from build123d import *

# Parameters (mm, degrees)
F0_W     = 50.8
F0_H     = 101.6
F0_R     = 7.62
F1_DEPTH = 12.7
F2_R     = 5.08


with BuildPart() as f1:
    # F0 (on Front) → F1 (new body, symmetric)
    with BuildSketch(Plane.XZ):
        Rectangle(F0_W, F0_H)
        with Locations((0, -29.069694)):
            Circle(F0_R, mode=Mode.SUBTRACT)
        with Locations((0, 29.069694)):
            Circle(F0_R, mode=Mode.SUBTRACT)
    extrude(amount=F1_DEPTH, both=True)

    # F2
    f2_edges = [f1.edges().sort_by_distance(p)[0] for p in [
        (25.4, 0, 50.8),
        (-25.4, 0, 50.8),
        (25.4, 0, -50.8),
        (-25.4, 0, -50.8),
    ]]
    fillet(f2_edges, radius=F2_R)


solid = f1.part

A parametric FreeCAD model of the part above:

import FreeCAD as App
import Part
import Sketcher

V = App.Vector
Q = App.Units.Quantity


def edges_at(feature, points):
    """Names of the edges that pass closest to the given points."""
    edges = feature.Shape.Edges
    near = lambda p: min(range(len(edges)), key=lambda i: edges[i].distToShape(Part.Vertex(*p))[0])
    return sorted({f"Edge{near(p) + 1}" for p in points})

doc = App.newDocument("Part")
body = doc.addObject("PartDesign::Body", "Body")

# Sketch on XZ plane
sketch1 = body.newObject("Sketcher::SketchObject", "Sketch")
sketch1.AttachmentSupport = (doc.getObject("XZ_Plane"), [""])
sketch1.MapMode = "FlatFace"
sketch1.addGeometry([
    Part.LineSegment(V(-25, 51, 0), V(-25, -51, 0)),  # 0
    Part.LineSegment(V(-25, -51, 0), V(25, -51, 0)),  # 1
    Part.LineSegment(V(25, -51, 0), V(25, 51, 0)),  # 2
    Part.LineSegment(V(25, 51, 0), V(-25, 51, 0)),  # 3
    Part.Circle(V(0, -29, 0), V(0, 0, 1), 8),  # 4
    Part.Circle(V(0, 29, 0), V(0, 0, 1), 8),  # 5
], False)
sketch1.addConstraint([
    Sketcher.Constraint("Coincident", 0, 2, 1, 1),
    Sketcher.Constraint("Coincident", 1, 2, 2, 1),
    Sketcher.Constraint("Coincident", 2, 2, 3, 1),
    Sketcher.Constraint("Coincident", 3, 2, 0, 1),
    Sketcher.Constraint("Vertical", 0),
    Sketcher.Constraint("Horizontal", 1),
    Sketcher.Constraint("Vertical", 2),
    Sketcher.Constraint("Horizontal", 3),
    Sketcher.Constraint("Equal", 4, 5),
    Sketcher.Constraint("Symmetric", 4, 3, 5, 3, -1, 1),
    Sketcher.Constraint("Symmetric", 0, 2, 2, 2, -1, 1),
    Sketcher.Constraint("PointOnObject", 4, 3, -2),
    Sketcher.Constraint("Diameter", 4, Q("0.6 in")),
    Sketcher.Constraint("DistanceX", 1, 1, 1, 2, Q("2 in")),
    Sketcher.Constraint("DistanceY", 0, 2, 0, 1, Q("4 in")),
    Sketcher.Constraint("DistanceY", 4, 3, -1, 1, 29.069694),
])
pad1 = body.newObject("PartDesign::Pad", "Pad")
pad1.Profile = sketch1
pad1.Length = Q("1 in")
pad1.Midplane = True
doc.recompute()

fillet = body.newObject("PartDesign::Fillet", "Fillet")
fillet.Base = (pad1, edges_at(pad1, [
    (25.4, 0, 50.8),
    (-25.4, 0, 50.8),
    (25.4, 0, -50.8),
    (-25.4, 0, -50.8),
]))
fillet.Radius = Q("0.2 in")

doc.recompute()
